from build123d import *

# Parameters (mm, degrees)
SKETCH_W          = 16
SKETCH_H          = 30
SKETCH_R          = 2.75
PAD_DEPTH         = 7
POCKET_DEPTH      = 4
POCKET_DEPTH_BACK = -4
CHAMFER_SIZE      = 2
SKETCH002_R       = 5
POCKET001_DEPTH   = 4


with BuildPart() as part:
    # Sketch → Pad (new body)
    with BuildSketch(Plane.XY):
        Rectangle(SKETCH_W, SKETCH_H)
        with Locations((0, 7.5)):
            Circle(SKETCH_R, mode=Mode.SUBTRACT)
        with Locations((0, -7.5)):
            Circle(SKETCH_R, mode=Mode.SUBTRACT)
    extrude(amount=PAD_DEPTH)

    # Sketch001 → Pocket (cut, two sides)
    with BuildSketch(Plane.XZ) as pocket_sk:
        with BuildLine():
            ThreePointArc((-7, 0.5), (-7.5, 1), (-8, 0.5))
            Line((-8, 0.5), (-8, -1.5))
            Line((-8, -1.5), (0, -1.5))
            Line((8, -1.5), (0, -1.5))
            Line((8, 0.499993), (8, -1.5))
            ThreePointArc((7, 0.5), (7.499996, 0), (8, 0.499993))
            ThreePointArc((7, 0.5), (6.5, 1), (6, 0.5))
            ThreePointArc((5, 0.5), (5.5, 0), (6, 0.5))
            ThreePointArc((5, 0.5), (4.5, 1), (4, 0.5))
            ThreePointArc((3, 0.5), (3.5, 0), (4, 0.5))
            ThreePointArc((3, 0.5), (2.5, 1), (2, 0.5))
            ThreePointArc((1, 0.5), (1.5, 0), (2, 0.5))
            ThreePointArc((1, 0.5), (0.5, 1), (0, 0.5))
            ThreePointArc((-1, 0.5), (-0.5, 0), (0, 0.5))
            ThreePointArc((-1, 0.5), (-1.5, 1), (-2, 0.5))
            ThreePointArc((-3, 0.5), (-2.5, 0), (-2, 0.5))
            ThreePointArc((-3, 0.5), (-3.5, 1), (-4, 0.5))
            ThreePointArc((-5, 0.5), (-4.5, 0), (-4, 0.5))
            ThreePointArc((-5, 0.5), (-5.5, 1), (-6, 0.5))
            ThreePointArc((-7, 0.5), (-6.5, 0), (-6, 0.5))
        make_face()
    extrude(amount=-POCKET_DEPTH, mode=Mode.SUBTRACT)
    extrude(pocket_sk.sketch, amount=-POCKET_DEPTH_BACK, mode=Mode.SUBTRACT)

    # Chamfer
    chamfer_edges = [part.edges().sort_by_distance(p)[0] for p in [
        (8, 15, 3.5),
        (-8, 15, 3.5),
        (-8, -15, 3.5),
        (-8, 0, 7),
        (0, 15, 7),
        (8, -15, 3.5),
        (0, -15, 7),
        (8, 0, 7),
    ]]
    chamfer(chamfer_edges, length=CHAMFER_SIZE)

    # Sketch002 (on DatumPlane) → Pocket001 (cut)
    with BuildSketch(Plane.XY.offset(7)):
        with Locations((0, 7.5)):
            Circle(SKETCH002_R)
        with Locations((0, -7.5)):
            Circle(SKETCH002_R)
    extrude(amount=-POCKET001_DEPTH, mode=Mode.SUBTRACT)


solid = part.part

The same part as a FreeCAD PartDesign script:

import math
import FreeCAD as App
import Part
import Sketcher
Q = App.Units.Quantity


def edges_at(feature, points):
    """Names of the edges that pass closest to the given points."""
    edges = feature.Shape.Edges
    near = lambda p: min(range(len(edges)), key=lambda i: edges[i].distToShape(Part.Vertex(*p))[0])
    return sorted({f"Edge{near(p) + 1}" for p in points})

doc = App.newDocument("Part")
params = doc.addObject("Spreadsheet::Sheet", "Params")
for row, (alias, value) in enumerate([
    ("sketch1_diameter", "5.5 mm"),
    ("sketch1_width", "16 mm"),
    ("sketch1_height", "30 mm"),
    ("pad1_length", "7 mm"),
    ("sketch2_radius", "0.5 mm"),
    ("sketch2_height", "2 mm"),
    ("pocket1_length", "4 mm"),
    ("pocket1_length2", "4 mm"),
    ("chamfer_size", "2 mm"),
    ("sketch3_diameter", "10 mm"),
    ("pocket2_length", "4 mm"),
], start=1):
    params.set(f"A{row}", alias)
    params.set(f"B{row}", "=" + value)
    params.setAlias(f"B{row}", alias)

body = doc.addObject("PartDesign::Body", "Body")

sketch1 = body.newObject("Sketcher::SketchObject", "Sketch")
sketch1.AttachmentSupport = (doc.getObject("XY_Plane"), [""])
sketch1.MapMode = "FlatFace"
sketch1.addGeometry([
    Part.LineSegment(App.Vector(-8, 15, 0), App.Vector(-8, -15, 0)),
    Part.LineSegment(App.Vector(-8, -15, 0), App.Vector(8, -15, 0)),
    Part.LineSegment(App.Vector(8, -15, 0), App.Vector(8, 15, 0)),
    Part.LineSegment(App.Vector(8, 15, 0), App.Vector(-8, 15, 0)),
    Part.Circle(App.Vector(0, -7.5, 0), App.Vector(0, 0, 1), 2.8),
    Part.Circle(App.Vector(0, 7.5, 0), App.Vector(0, 0, 1), 2.8),
], False)
sketch1.addConstraint([
    Sketcher.Constraint("Coincident", 0, 2, 1, 1),
    Sketcher.Constraint("Coincident", 1, 2, 2, 1),
    Sketcher.Constraint("Coincident", 2, 2, 3, 1),
    Sketcher.Constraint("Coincident", 3, 2, 0, 1),
    Sketcher.Constraint("Vertical", 0),
    Sketcher.Constraint("Horizontal", 1),
    Sketcher.Constraint("Vertical", 2),
    Sketcher.Constraint("Horizontal", 3),
    Sketcher.Constraint("Equal", 4, 5),
    Sketcher.Constraint("Symmetric", 4, 3, 5, 3, -1, 1),
    Sketcher.Constraint("Symmetric", 0, 2, 2, 2, -1, 1),
    Sketcher.Constraint("PointOnObject", 4, 3, -2),
    Sketcher.Constraint("Diameter", 4, Q("5.5 mm")),
    Sketcher.Constraint("DistanceX", 1, 1, 1, 2, Q("16 mm")),
    Sketcher.Constraint("DistanceY", 0, 2, 0, 1, Q("30 mm")),
    Sketcher.Constraint("DistanceY", 4, 3, 5, 3, Q("15 mm")),
])
sketch1.setExpression("Constraints[12]", "Params.sketch1_diameter")
sketch1.setExpression("Constraints[13]", "Params.sketch1_width")
sketch1.setExpression("Constraints[14]", "Params.sketch1_height")
pad1 = body.newObject("PartDesign::Pad", "Pad")
pad1.Profile = sketch1
pad1.setExpression("Length", "Params.pad1_length")

sketch2 = body.newObject("Sketcher::SketchObject", "Sketch001")
sketch2.AttachmentSupport = (doc.getObject("XZ_Plane"), [""])
sketch2.MapMode = "FlatFace"
sketch2.addGeometry([
    Part.ArcOfCircle(Part.Circle(App.Vector(-7.5, 0.5, 0), App.Vector(0, 0, 1), 0.5), math.radians(0), math.radians(180)),
    Part.LineSegment(App.Vector(-8, 0.5, 0), App.Vector(-8, -1.5, 0)),
    Part.LineSegment(App.Vector(-8, -1.5, 0), App.Vector(8, -1.5, 0)),
    Part.LineSegment(App.Vector(8, -1.5, 0), App.Vector(8, 0.5, 0)),
    Part.ArcOfCircle(Part.Circle(App.Vector(7.5, 0.5, 0), App.Vector(0, 0, 1), 0.5), math.radians(180), math.radians(360)),
    Part.ArcOfCircle(Part.Circle(App.Vector(6.5, 0.5, 0), App.Vector(0, 0, 1), 0.5), math.radians(0), math.radians(180)),
    Part.ArcOfCircle(Part.Circle(App.Vector(5.5, 0.5, 0), App.Vector(0, 0, 1), 0.5), math.radians(180), math.radians(360)),
    Part.ArcOfCircle(Part.Circle(App.Vector(4.5, 0.5, 0), App.Vector(0, 0, 1), 0.5), math.radians(0), math.radians(180)),
    Part.ArcOfCircle(Part.Circle(App.Vector(3.5, 0.5, 0), App.Vector(0, 0, 1), 0.5), math.radians(180), math.radians(360)),
    Part.ArcOfCircle(Part.Circle(App.Vector(2.5, 0.5, 0), App.Vector(0, 0, 1), 0.5), math.radians(0), math.radians(180)),
    Part.ArcOfCircle(Part.Circle(App.Vector(1.5, 0.5, 0), App.Vector(0, 0, 1), 0.5), math.radians(180), math.radians(360)),
    Part.ArcOfCircle(Part.Circle(App.Vector(0.5, 0.5, 0), App.Vector(0, 0, 1), 0.5), math.radians(0), math.radians(180)),
    Part.ArcOfCircle(Part.Circle(App.Vector(-0.5, 0.5, 0), App.Vector(0, 0, 1), 0.5), math.radians(180), math.radians(360)),
    Part.ArcOfCircle(Part.Circle(App.Vector(-1.5, 0.5, 0), App.Vector(0, 0, 1), 0.5), math.radians(0), math.radians(180)),
    Part.ArcOfCircle(Part.Circle(App.Vector(-2.5, 0.5, 0), App.Vector(0, 0, 1), 0.5), math.radians(180), math.radians(360)),
    Part.ArcOfCircle(Part.Circle(App.Vector(-3.5, 0.5, 0), App.Vector(0, 0, 1), 0.5), math.radians(0), math.radians(180)),
    Part.ArcOfCircle(Part.Circle(App.Vector(-4.5, 0.5, 0), App.Vector(0, 0, 1), 0.5), math.radians(180), math.radians(360)),
    Part.ArcOfCircle(Part.Circle(App.Vector(-5.5, 0.5, 0), App.Vector(0, 0, 1), 0.5), math.radians(0), math.radians(180)),
    Part.ArcOfCircle(Part.Circle(App.Vector(-6.5, 0.5, 0), App.Vector(0, 0, 1), 0.5), math.radians(180), math.radians(360)),
], False)
sketch2.addConstraint([
    Sketcher.Constraint("Tangent", 0, 2, 1, 1),
    Sketcher.Constraint("Coincident", 1, 2, 2, 1),
    Sketcher.Constraint("Coincident", 2, 2, 3, 1),
    Sketcher.Constraint("Coincident", 3, 2, 4, 2),
    Sketcher.Constraint("Tangent", 4, 1, 5, 1),
    Sketcher.Constraint("Tangent", 5, 2, 6, 2),
    Sketcher.Constraint("Tangent", 6, 1, 7, 1),
    Sketcher.Constraint("Tangent", 7, 2, 8, 2),
    Sketcher.Constraint("Tangent", 8, 1, 9, 1),
    Sketcher.Constraint("Tangent", 9, 2, 10, 2),
    Sketcher.Constraint("Tangent", 10, 1, 11, 1),
    Sketcher.Constraint("Tangent", 11, 2, 12, 2),
    Sketcher.Constraint("Tangent", 12, 1, 13, 1),
    Sketcher.Constraint("Tangent", 13, 2, 14, 2),
    Sketcher.Constraint("Tangent", 14, 1, 15, 1),
    Sketcher.Constraint("Tangent", 15, 2, 16, 2),
    Sketcher.Constraint("Tangent", 16, 1, 17, 1),
    Sketcher.Constraint("Tangent", 17, 2, 18, 2),
    Sketcher.Constraint("Tangent", 18, 1, 0, 1),
    Sketcher.Constraint("Vertical", 1),
    Sketcher.Constraint("Horizontal", 2),
    Sketcher.Constraint("Vertical", 3),
    Sketcher.Constraint("Equal", 0, 4),
    Sketcher.Constraint("Equal", 4, 5),
    Sketcher.Constraint("Equal", 5, 6),
    Sketcher.Constraint("Equal", 6, 7),
    Sketcher.Constraint("Equal", 7, 8),
    Sketcher.Constraint("Equal", 8, 9),
    Sketcher.Constraint("Equal", 9, 10),
    Sketcher.Constraint("Equal", 10, 11),
    Sketcher.Constraint("Equal", 11, 12),
    Sketcher.Constraint("Equal", 12, 13),
    Sketcher.Constraint("Equal", 13, 14),
    Sketcher.Constraint("Equal", 14, 15),
    Sketcher.Constraint("Equal", 15, 16),
    Sketcher.Constraint("Equal", 16, 17),
    Sketcher.Constraint("Equal", 17, 18),
    Sketcher.Constraint("Symmetric", 0, 3, 4, 3, -2),
    Sketcher.Constraint("Horizontal", 4, 3, 5, 3),
    Sketcher.Constraint("Horizontal", 5, 3, 6, 3),
    Sketcher.Constraint("Horizontal", 6, 3, 7, 3),
    Sketcher.Constraint("Horizontal", 7, 3, 8, 3),
    Sketcher.Constraint("Horizontal", 8, 3, 9, 3),
    Sketcher.Constraint("Horizontal", 9, 3, 10, 3),
    Sketcher.Constraint("Horizontal", 10, 3, 11, 3),
    Sketcher.Constraint("Horizontal", 11, 3, 12, 3),
    Sketcher.Constraint("Horizontal", 12, 3, 13, 3),
    Sketcher.Constraint("Horizontal", 13, 3, 14, 3),
    Sketcher.Constraint("Horizontal", 14, 3, 15, 3),
    Sketcher.Constraint("Horizontal", 15, 3, 16, 3),
    Sketcher.Constraint("Horizontal", 16, 3, 17, 3),
    Sketcher.Constraint("Horizontal", 17, 3, 18, 3),
    Sketcher.Constraint("Radius", 0, Q("0.5 mm")),
    Sketcher.Constraint("DistanceY", 1, 2, 1, 1, Q("2 mm")),
    Sketcher.Constraint("DistanceY", -1, 1, 0, 3, Q("0.5 mm")),
    Sketcher.Constraint("DistanceY", 3, 1, 3, 2, Q("1.999993 mm")),
])
sketch2.setExpression("Constraints[52]", "Params.sketch2_radius")
sketch2.setExpression("Constraints[53]", "Params.sketch2_height")
pocket1 = body.newObject("PartDesign::Pocket", "Pocket")
pocket1.Profile = sketch2
pocket1.Type = "TwoLengths"
pocket1.setExpression("Length", "Params.pocket1_length")
pocket1.setExpression("Length2", "Params.pocket1_length2")
doc.recompute()

chamfer = body.newObject("PartDesign::Chamfer", "Chamfer")
chamfer.Base = (pocket1, edges_at(pocket1, [
    (8, 15, 3.5),
    (-8, 15, 3.5),
    (-8, -15, 3.5),
    (-8, 0, 7),
    (0, 15, 7),
    (8, -15, 3.5),
    (0, -15, 7),
    (8, 0, 7),
]))
chamfer.setExpression("Size", "Params.chamfer_size")

sketch3 = body.newObject("Sketcher::SketchObject", "Sketch002")
sketch3.AttachmentSupport = (doc.getObject("XY_Plane"), [""])
sketch3.MapMode = "FlatFace"
sketch3.AttachmentOffset = App.Placement(App.Vector(0, 0, 7), App.Rotation())
sketch3.addGeometry([
    Part.Circle(App.Vector(0, 8, 0), App.Vector(0, 0, 1), 5),
    Part.Circle(App.Vector(0, -8, 0), App.Vector(0, 0, 1), 5),
], False)
sketch3.addConstraint([
    Sketcher.Constraint("Equal", 0, 1),
    Sketcher.Constraint("Symmetric", 0, 3, 1, 3, -1, 1),
    Sketcher.Constraint("PointOnObject", 0, 3, -2),
    Sketcher.Constraint("Diameter", 0, Q("10 mm")),
    Sketcher.Constraint("DistanceY", 1, 3, 0, 3, Q("15 mm")),
])
sketch3.setExpression("Constraints[3]", "Params.sketch3_diameter")
pocket2 = body.newObject("PartDesign::Pocket", "Pocket001")
pocket2.Profile = sketch3
pocket2.setExpression("Length", "Params.pocket2_length")

doc.recompute()
